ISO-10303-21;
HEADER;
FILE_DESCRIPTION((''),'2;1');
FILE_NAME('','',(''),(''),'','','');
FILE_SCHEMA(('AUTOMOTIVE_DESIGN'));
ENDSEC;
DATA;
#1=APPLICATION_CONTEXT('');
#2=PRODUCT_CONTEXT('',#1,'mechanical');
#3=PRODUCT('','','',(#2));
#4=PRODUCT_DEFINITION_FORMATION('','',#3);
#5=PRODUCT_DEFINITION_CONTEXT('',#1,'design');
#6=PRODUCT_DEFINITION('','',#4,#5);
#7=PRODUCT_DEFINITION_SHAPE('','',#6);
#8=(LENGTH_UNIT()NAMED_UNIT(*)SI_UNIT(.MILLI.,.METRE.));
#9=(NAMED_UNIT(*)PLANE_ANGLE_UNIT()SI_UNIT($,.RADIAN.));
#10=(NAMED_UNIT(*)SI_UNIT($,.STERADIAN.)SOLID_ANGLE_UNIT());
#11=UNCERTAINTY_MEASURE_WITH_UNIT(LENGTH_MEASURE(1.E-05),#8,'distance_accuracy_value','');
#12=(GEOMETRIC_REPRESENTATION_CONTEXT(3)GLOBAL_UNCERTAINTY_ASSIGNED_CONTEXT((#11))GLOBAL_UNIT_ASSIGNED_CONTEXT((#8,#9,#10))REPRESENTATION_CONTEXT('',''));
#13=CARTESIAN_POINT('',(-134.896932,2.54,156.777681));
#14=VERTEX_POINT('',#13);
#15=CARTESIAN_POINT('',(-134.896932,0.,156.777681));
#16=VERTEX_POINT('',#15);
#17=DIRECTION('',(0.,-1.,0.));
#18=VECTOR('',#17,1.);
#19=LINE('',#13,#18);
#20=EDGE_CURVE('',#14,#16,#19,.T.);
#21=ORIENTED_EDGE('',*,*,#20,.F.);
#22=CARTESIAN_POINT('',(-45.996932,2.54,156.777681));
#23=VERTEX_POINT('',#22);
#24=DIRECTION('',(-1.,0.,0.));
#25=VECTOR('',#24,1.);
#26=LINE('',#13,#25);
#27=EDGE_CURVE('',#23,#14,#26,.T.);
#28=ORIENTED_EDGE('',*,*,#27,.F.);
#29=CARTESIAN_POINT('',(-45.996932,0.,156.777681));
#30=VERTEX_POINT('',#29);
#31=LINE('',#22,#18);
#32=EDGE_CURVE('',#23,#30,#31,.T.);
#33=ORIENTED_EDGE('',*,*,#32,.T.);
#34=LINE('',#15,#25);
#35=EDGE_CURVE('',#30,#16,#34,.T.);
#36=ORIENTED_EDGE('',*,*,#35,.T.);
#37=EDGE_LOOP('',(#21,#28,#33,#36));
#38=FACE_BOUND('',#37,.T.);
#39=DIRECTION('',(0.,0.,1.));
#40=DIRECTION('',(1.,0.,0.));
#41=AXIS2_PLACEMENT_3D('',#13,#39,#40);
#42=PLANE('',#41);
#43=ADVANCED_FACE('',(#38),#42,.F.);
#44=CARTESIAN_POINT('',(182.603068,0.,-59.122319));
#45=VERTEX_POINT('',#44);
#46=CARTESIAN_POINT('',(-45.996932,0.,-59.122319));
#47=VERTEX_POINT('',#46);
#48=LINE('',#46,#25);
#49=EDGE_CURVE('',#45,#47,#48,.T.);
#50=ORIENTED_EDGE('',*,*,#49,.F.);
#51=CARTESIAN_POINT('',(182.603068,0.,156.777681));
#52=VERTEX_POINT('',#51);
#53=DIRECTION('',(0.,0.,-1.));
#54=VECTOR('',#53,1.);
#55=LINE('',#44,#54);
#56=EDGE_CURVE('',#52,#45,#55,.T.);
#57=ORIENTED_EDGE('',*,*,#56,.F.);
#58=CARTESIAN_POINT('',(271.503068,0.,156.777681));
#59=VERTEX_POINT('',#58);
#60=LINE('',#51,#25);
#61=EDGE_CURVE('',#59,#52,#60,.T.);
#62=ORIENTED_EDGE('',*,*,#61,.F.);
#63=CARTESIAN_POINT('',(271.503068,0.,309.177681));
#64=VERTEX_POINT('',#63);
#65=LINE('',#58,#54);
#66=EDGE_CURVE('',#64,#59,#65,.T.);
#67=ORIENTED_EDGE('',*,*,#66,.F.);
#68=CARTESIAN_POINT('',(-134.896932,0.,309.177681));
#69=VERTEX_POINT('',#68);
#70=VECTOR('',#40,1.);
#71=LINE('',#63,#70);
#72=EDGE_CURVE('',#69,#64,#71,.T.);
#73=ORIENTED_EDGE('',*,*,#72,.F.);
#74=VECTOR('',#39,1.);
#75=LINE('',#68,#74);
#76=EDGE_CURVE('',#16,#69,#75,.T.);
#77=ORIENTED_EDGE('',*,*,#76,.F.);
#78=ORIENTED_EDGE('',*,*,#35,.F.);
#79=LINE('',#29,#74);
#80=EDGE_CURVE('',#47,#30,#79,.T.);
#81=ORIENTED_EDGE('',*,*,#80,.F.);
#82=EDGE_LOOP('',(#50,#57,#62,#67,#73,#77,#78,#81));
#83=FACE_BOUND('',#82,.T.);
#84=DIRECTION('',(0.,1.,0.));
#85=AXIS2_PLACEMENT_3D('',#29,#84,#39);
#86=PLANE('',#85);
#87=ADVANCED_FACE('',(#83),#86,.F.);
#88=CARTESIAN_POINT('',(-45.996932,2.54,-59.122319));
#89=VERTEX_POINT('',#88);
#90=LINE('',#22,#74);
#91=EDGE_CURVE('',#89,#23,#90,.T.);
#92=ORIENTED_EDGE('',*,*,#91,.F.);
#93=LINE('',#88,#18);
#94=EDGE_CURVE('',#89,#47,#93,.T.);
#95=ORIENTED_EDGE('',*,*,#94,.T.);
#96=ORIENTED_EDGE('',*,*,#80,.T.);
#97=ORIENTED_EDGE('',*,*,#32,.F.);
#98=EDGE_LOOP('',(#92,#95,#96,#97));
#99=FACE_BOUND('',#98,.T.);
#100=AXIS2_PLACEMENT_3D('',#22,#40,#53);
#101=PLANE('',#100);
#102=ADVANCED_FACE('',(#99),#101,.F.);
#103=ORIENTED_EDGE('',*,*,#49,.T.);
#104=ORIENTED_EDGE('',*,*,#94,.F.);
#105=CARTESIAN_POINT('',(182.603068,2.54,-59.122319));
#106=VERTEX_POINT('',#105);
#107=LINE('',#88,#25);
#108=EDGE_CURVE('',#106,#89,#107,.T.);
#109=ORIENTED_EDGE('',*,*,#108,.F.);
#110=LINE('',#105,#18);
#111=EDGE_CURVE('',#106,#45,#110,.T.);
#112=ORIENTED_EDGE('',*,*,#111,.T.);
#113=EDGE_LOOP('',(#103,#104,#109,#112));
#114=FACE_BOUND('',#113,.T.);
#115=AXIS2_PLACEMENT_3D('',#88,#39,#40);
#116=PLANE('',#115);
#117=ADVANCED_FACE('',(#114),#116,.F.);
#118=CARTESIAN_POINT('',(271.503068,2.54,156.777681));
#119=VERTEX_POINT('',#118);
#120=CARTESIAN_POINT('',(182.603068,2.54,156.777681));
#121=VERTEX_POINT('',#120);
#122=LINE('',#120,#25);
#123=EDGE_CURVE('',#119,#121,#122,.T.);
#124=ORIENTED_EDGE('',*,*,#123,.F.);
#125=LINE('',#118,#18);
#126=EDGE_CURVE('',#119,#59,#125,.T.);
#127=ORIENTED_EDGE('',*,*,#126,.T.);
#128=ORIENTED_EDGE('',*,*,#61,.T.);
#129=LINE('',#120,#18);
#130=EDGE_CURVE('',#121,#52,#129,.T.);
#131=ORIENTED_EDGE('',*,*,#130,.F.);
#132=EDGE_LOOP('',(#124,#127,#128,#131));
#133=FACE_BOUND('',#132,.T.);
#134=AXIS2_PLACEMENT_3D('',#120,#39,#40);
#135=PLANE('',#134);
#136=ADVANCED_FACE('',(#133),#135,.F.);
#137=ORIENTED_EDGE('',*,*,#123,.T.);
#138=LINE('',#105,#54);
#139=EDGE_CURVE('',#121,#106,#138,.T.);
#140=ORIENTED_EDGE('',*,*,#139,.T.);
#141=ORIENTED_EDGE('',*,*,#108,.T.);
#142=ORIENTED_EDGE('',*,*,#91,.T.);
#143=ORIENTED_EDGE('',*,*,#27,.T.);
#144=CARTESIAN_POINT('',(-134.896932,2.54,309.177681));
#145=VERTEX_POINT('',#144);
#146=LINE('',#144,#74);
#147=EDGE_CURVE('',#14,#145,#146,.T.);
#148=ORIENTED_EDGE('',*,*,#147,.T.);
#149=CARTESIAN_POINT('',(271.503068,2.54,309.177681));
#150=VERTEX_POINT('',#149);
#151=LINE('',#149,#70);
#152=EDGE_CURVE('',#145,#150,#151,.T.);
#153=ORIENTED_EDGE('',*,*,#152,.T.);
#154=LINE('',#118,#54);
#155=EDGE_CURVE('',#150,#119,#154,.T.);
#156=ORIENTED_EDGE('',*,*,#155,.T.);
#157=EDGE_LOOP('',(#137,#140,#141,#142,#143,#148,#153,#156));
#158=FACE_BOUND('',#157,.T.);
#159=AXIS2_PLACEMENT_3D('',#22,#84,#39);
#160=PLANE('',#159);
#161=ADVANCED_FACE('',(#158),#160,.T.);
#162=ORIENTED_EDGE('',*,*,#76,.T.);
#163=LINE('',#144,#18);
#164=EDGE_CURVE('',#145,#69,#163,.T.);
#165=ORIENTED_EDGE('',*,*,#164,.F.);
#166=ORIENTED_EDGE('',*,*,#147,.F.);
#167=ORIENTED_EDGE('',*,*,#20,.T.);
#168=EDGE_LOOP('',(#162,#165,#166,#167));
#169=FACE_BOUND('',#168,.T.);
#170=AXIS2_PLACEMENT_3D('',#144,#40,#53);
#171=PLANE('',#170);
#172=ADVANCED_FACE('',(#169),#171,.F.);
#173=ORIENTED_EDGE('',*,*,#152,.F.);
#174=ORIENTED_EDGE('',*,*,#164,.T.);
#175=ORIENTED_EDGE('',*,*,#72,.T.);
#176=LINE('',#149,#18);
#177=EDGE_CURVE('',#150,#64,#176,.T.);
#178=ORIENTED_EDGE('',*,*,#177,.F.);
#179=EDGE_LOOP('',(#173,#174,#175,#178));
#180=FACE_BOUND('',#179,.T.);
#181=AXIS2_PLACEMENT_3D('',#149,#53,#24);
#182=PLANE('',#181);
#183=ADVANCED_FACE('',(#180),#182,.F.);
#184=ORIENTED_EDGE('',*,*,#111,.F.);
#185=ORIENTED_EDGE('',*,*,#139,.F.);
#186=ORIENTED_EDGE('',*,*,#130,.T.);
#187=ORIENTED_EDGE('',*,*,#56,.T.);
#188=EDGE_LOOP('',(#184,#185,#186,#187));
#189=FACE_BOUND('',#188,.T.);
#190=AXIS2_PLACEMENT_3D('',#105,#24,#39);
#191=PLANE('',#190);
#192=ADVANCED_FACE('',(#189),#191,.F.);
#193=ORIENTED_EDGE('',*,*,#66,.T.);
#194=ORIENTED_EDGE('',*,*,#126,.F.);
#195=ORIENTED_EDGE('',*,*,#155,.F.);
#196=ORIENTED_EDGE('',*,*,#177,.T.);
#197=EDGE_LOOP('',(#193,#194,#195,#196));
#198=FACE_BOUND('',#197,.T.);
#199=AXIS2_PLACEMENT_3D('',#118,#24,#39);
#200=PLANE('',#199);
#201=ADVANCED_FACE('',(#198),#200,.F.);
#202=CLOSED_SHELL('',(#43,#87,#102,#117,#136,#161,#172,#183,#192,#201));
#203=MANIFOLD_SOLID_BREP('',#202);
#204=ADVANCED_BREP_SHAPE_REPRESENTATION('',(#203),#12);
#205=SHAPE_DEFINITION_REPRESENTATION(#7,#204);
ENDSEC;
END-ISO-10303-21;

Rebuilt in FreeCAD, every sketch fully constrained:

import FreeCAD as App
import Part
import Sketcher
from FreeCAD import Vector
Q = App.Units.Quantity


def add_polygon(sketch, points):
    """Adds a closed chain of lines whose ends are joined by coincident constraints."""
    first, n = sketch.GeometryCount, len(points)
    for a, b in zip(points, points[1:] + points[:1]):
        sketch.addGeometry(Part.LineSegment(App.Vector(*a, 0), App.Vector(*b, 0)), False)
    for i in range(n):
        sketch.addConstraint(Sketcher.Constraint("Coincident", first + i, 2, first + (i + 1) % n, 1))

doc = App.newDocument("Part")
body = doc.addObject("PartDesign::Body", "Body")

# Sketch on XZ plane
sketch1 = body.newObject("Sketcher::SketchObject", "Sketch")
sketch1.AttachmentSupport = (doc.getObject("XZ_Plane"), [""])
sketch1.MapMode = "FlatFace"
add_polygon(sketch1, [(-46, -59), (-46, 157), (-135, 157), (-135, 309), (272, 309), (272, 157), (183, 157), (183, -59)])  # lines 0-7
sketch1.addConstraint(Sketcher.Constraint("Vertical", 0))
sketch1.addConstraint(Sketcher.Constraint("Horizontal", 1))
sketch1.addConstraint(Sketcher.Constraint("Vertical", 2))
sketch1.addConstraint(Sketcher.Constraint("Horizontal", 3))
sketch1.addConstraint(Sketcher.Constraint("Vertical", 4))
sketch1.addConstraint(Sketcher.Constraint("Horizontal", 5))
sketch1.addConstraint(Sketcher.Constraint("Vertical", 6))
sketch1.addConstraint(Sketcher.Constraint("Horizontal", 7))
sketch1.addConstraint(Sketcher.Constraint("Horizontal", 1, 2, 4, 2))
sketch1.addConstraint(Sketcher.Constraint("Equal", 1, 5))
sketch1.addConstraint(Sketcher.Constraint("DistanceX", 3, 1, 3, 2, Q("16 in")))
sketch1.addConstraint(Sketcher.Constraint("DistanceX", 7, 2, 7, 1, Q("9 in")))
sketch1.addConstraint(Sketcher.Constraint("DistanceY", 2, 1, 2, 2, Q("6 in")))
sketch1.addConstraint(Sketcher.Constraint("DistanceY", 0, 1, 0, 2, Q("8.5 in")))
sketch1.addConstraint(Sketcher.Constraint("DistanceY", -1, 1, 0, 2, 156.777681))
sketch1.addConstraint(Sketcher.Constraint("DistanceX", 0, 2, -1, 1, 45.996932))
pad1 = body.newObject("PartDesign::Pad", "Pad")
pad1.Profile = sketch1
pad1.Length = Q("0.1 in")
pad1.Reversed = True

doc.recompute()
